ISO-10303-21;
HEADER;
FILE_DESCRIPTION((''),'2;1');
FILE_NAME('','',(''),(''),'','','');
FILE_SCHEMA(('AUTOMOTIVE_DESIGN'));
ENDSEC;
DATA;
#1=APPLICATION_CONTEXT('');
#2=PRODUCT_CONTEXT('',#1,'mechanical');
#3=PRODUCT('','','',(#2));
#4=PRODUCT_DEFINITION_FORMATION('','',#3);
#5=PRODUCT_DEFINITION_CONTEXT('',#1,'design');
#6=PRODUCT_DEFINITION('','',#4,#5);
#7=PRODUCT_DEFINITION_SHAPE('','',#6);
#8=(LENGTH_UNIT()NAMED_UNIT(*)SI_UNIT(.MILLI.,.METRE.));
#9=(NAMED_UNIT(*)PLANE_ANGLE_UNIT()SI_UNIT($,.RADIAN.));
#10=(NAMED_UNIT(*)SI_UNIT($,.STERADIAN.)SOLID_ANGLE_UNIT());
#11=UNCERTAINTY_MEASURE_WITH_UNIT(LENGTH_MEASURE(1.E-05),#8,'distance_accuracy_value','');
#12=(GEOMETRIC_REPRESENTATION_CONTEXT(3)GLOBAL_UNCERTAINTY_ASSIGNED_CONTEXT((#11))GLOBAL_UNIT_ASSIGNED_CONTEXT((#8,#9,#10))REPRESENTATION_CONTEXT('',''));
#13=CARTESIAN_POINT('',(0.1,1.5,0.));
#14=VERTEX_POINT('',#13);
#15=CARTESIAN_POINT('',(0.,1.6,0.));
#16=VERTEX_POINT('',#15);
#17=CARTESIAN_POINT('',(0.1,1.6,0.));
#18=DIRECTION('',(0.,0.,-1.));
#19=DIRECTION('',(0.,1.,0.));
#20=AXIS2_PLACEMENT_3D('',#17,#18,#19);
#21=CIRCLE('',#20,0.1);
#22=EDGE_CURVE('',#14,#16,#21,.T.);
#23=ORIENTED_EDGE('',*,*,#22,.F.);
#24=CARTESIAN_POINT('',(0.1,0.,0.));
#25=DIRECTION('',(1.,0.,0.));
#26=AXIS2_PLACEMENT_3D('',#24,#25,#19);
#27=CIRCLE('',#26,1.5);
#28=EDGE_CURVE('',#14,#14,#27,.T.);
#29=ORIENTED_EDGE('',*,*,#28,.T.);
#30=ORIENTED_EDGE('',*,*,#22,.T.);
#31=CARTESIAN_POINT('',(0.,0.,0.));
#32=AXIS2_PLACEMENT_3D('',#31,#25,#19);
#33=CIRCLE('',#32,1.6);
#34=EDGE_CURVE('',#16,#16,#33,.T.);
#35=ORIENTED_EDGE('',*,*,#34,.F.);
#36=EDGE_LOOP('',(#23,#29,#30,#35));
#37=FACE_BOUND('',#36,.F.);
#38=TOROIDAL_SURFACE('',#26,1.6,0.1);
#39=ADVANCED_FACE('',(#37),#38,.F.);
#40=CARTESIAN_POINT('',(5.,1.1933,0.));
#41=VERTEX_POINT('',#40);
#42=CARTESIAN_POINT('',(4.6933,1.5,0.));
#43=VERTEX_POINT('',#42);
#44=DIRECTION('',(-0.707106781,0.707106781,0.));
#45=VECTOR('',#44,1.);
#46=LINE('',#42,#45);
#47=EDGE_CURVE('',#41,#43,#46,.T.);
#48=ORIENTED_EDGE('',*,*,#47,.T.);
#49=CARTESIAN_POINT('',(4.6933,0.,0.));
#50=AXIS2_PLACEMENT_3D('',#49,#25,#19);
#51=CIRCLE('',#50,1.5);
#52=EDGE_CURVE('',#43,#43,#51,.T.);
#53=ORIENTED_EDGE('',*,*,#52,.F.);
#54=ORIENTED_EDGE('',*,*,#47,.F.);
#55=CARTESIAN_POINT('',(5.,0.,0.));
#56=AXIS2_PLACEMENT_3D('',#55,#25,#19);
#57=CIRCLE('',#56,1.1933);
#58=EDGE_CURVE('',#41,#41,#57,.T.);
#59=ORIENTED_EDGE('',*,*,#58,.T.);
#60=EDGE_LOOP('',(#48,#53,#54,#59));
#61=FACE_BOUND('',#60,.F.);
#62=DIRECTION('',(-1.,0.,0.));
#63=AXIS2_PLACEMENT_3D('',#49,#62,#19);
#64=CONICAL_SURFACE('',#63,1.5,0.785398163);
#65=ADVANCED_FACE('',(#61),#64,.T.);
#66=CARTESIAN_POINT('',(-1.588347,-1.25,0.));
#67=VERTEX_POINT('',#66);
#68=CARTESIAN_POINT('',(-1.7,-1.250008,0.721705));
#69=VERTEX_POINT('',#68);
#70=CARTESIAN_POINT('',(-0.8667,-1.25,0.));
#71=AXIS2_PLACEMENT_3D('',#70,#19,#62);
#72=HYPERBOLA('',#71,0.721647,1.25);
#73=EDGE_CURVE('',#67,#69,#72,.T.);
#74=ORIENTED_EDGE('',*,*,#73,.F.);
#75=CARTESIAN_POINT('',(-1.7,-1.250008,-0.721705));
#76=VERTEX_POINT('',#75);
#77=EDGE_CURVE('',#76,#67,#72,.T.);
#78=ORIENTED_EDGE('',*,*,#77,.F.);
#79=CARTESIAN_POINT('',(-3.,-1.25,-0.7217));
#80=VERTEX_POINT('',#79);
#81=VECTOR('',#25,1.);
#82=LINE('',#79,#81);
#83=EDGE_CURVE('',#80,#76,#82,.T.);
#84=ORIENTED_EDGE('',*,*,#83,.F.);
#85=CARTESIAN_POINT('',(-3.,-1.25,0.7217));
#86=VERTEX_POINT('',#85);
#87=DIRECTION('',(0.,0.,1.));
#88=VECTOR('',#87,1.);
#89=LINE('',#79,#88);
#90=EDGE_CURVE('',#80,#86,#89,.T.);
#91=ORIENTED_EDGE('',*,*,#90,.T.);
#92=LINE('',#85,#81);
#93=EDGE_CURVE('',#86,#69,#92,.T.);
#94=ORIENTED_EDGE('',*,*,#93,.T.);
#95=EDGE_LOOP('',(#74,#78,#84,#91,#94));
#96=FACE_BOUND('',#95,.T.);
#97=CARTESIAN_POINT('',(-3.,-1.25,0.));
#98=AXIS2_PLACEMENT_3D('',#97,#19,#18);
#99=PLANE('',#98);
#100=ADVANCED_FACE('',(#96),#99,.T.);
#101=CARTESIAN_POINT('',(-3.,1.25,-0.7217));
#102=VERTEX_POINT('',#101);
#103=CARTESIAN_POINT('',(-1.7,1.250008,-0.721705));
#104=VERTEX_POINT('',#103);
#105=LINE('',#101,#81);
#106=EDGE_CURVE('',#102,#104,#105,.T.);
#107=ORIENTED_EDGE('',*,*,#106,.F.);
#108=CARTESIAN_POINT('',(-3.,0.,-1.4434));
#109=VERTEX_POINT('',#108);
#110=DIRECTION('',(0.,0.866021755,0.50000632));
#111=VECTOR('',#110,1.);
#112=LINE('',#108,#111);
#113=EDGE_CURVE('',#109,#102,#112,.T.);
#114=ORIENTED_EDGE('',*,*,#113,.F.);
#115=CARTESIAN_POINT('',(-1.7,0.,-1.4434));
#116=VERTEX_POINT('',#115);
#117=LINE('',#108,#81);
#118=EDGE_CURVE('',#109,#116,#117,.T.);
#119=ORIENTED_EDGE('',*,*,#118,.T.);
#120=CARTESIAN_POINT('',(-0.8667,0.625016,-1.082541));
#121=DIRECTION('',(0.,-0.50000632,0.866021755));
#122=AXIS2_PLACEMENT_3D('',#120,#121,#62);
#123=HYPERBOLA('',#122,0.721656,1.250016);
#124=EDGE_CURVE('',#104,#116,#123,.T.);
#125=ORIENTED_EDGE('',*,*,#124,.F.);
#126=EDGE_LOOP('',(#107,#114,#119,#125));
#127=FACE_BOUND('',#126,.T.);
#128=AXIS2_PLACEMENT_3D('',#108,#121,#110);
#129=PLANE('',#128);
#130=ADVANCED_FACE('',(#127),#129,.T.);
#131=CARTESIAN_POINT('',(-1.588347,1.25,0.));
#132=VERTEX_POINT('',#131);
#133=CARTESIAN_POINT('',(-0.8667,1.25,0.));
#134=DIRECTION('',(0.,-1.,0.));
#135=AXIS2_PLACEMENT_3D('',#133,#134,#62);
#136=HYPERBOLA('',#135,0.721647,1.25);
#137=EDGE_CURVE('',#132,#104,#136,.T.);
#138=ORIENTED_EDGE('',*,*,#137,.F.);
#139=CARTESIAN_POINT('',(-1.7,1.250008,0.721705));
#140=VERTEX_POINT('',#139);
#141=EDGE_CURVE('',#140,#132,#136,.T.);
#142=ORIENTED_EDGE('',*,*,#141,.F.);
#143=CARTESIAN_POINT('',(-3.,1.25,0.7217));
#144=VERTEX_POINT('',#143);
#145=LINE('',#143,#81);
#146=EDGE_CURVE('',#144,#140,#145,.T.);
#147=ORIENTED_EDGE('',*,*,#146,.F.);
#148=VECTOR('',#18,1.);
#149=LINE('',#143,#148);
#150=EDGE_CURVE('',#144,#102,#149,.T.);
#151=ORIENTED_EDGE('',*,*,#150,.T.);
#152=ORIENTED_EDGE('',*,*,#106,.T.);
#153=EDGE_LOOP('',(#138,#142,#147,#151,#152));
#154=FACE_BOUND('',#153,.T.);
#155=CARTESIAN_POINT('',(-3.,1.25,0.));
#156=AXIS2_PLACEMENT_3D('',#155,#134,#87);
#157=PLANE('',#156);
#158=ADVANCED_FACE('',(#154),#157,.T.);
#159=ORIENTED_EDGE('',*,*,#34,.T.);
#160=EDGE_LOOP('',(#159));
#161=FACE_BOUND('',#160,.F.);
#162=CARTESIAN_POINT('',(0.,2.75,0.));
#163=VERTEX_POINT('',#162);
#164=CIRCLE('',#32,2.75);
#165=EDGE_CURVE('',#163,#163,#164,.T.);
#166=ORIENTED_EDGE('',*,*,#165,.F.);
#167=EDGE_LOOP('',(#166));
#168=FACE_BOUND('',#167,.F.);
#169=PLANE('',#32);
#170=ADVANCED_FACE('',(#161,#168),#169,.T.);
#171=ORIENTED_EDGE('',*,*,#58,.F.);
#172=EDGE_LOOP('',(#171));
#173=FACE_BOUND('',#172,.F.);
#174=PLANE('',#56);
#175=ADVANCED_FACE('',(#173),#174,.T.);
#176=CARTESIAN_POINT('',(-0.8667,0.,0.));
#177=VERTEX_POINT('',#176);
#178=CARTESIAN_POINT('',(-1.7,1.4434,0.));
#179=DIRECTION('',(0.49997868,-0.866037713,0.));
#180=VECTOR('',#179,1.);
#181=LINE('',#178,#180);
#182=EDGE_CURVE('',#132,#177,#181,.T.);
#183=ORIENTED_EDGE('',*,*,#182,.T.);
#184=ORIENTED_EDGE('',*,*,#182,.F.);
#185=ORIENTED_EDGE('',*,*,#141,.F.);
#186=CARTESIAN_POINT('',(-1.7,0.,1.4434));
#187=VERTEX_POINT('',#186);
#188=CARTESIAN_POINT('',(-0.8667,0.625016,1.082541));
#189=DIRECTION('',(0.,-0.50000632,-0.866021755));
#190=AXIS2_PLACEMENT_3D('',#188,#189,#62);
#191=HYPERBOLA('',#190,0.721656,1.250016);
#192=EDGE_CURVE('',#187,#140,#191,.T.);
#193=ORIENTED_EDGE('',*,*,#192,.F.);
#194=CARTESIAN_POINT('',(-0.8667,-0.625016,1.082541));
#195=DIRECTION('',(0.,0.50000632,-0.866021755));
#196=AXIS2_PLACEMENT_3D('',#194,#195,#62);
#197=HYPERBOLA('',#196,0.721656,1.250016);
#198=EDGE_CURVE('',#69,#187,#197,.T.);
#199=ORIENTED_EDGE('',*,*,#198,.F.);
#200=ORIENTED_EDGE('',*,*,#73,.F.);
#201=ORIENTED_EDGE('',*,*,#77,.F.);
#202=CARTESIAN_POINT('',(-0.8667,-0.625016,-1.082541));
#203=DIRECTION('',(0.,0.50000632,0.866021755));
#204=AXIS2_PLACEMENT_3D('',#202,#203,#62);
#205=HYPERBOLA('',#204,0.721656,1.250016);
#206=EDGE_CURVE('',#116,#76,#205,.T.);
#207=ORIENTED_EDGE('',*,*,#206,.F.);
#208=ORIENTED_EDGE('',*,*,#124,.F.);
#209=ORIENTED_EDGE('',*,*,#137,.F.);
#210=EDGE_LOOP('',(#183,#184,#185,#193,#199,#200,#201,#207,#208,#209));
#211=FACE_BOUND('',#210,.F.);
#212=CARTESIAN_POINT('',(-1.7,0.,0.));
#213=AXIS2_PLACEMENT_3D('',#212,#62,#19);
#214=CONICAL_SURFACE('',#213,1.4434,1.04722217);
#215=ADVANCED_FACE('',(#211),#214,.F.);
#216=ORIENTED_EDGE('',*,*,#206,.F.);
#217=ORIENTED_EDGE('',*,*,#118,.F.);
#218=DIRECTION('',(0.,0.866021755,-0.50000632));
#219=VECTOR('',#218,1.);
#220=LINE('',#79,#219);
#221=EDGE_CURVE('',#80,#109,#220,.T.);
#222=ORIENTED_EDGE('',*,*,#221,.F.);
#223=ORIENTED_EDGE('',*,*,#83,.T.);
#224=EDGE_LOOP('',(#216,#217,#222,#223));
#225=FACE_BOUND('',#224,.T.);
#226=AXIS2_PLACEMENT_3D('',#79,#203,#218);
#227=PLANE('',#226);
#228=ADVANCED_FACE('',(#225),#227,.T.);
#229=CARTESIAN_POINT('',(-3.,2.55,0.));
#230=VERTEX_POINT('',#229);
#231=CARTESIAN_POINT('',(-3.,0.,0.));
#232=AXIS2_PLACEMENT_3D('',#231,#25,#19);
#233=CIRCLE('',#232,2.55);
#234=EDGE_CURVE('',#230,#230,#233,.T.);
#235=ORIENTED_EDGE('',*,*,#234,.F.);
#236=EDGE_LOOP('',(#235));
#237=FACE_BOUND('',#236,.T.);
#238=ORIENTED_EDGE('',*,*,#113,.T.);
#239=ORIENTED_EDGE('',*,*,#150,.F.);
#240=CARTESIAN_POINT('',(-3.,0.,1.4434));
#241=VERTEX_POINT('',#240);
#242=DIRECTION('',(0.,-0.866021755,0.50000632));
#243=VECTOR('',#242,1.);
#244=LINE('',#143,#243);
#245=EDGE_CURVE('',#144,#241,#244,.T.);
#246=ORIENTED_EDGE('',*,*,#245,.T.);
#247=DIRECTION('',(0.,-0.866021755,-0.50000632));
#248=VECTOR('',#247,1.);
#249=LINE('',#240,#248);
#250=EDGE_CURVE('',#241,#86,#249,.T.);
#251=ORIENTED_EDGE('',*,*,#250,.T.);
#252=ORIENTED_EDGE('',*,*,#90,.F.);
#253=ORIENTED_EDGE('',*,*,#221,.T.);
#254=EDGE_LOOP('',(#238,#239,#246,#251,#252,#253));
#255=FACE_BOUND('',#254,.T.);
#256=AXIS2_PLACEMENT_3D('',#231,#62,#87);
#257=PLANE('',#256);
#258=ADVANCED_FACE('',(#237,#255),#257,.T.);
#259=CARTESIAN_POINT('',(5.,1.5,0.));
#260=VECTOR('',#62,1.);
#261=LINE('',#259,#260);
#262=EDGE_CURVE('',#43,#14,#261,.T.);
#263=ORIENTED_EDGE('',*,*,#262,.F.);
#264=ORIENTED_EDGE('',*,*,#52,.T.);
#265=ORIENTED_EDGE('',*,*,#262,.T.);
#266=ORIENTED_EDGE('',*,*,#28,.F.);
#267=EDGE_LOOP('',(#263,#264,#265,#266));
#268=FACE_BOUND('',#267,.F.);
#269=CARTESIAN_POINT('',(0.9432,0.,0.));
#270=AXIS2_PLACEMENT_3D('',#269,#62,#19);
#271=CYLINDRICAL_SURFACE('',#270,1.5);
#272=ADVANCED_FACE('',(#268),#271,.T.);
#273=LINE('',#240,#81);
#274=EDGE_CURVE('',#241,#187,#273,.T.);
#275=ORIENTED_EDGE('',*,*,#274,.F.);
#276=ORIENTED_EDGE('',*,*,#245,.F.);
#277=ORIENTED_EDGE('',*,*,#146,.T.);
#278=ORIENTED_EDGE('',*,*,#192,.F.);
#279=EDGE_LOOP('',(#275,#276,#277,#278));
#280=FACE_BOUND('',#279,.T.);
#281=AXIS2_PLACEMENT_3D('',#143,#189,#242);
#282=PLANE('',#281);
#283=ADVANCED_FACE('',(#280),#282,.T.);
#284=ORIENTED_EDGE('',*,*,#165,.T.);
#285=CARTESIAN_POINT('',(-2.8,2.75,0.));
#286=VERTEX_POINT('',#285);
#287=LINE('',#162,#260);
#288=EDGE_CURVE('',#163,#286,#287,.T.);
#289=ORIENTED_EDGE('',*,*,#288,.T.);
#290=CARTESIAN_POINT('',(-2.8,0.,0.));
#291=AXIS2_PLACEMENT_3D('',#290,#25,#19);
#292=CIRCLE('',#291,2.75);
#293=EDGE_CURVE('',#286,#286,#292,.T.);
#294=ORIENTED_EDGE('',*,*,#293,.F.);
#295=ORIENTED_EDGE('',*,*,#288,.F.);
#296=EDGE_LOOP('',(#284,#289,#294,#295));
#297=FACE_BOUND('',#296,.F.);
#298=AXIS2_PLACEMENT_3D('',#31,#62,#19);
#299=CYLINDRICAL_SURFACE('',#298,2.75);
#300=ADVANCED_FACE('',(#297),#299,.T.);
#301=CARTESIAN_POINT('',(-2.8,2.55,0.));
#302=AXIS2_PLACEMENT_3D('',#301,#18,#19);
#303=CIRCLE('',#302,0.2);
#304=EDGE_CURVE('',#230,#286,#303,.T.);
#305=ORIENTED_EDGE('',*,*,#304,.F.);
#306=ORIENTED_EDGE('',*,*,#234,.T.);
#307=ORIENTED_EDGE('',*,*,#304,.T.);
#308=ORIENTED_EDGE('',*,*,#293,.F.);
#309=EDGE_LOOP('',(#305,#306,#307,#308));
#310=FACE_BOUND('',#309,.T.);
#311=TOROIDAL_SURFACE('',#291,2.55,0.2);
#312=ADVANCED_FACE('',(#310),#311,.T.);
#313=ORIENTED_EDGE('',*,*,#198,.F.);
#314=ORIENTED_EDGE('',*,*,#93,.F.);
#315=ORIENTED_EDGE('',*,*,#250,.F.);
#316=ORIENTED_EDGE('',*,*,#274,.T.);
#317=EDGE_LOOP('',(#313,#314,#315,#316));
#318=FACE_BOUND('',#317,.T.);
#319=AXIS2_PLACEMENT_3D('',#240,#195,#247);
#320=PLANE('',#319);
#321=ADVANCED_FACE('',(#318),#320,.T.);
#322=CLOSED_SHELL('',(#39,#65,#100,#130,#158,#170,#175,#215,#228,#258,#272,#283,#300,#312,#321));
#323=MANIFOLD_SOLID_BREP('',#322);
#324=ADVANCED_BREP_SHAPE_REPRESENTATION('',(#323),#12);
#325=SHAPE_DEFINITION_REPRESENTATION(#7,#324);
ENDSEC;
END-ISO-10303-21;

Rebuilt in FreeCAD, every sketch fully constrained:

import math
import FreeCAD as App
import Part
import Sketcher

V = App.Vector
Q = App.Units.Quantity


def edges_at(feature, points):
    """Names of the edges that pass closest to the given points."""
    edges = feature.Shape.Edges
    near = lambda p: min(range(len(edges)), key=lambda i: edges[i].distToShape(Part.Vertex(*p))[0])
    return sorted({f"Edge{near(p) + 1}" for p in points})

doc = App.newDocument("Part")
body = doc.addObject("PartDesign::Body", "Body")

sketch1 = doc.addObject("Sketcher::SketchObject", "Sketch")
body.addObject(sketch1)
sketch1.AttachmentSupport = (doc.XY_Plane, [""])
sketch1.MapMode = "FlatFace"
sketch1.addGeometry([
    Part.LineSegment(V(-1.7, 1.4, 0), V(-0.9, 0, 0)),
    Part.LineSegment(V(-0.9, 0, 0), V(5, 0, 0)),
    Part.LineSegment(V(5, 0, 0), V(5, 1.5, 0)),
    Part.LineSegment(V(5, 1.5, 0), V(0, 1.5, 0)),
    Part.LineSegment(V(0, 1.5, 0), V(0, 2.8, 0)),
    Part.LineSegment(V(0, 2.8, 0), V(-3, 2.8, 0)),
    Part.LineSegment(V(-3, 2.8, 0), V(-3, 1.4, 0)),
    Part.LineSegment(V(-3, 1.4, 0), V(-1.7, 1.4, 0)),
], False)
sketch1.addConstraint([
    Sketcher.Constraint("Coincident", 0, 2, 1, 1),
    Sketcher.Constraint("Coincident", 1, 2, 2, 1),
    Sketcher.Constraint("Coincident", 2, 2, 3, 1),
    Sketcher.Constraint("Coincident", 3, 2, 4, 1),
    Sketcher.Constraint("Coincident", 4, 2, 5, 1),
    Sketcher.Constraint("Coincident", 5, 2, 6, 1),
    Sketcher.Constraint("Coincident", 6, 2, 7, 1),
    Sketcher.Constraint("Coincident", 7, 2, 0, 1),
    Sketcher.Constraint("Horizontal", 1),
    Sketcher.Constraint("Vertical", 2),
    Sketcher.Constraint("Horizontal", 3),
    Sketcher.Constraint("Vertical", 4),
    Sketcher.Constraint("Horizontal", 5),
    Sketcher.Constraint("Vertical", 6),
    Sketcher.Constraint("Horizontal", 7),
    Sketcher.Constraint("PointOnObject", 0, 2, -1),
    Sketcher.Constraint("PointOnObject", 3, 2, -2),
    Sketcher.Constraint("DistanceX", 3, 2, 3, 1, 5.0),
    Sketcher.Constraint("DistanceX", 5, 2, 5, 1, 3.0),
    Sketcher.Constraint("DistanceX", 7, 1, 7, 2, 1.3),
    Sketcher.Constraint("DistanceY", 2, 1, 2, 2, 1.5),
    Sketcher.Constraint("DistanceY", 4, 1, 4, 2, 1.25),
    Sketcher.Constraint("DistanceX", 1, 1, 1, 2, 5.8667),
    Sketcher.Constraint("DistanceY", 6, 2, 6, 1, 1.3066),
])
revolution = doc.addObject("PartDesign::Revolution", "Revolution")
body.addObject(revolution)
revolution.Profile = sketch1
revolution.ReferenceAxis = (sketch1, ["H_Axis"])
revolution.Angle = 360

sketch2 = doc.addObject("Sketcher::SketchObject", "Sketch001")
body.addObject(sketch2)
sketch2.AttachmentSupport = (doc.YZ_Plane, [""])
sketch2.MapMode = "FlatFace"
sketch2.AttachmentOffset = App.Placement(V(0, 0, -3), App.Rotation())
sketch2.addGeometry([
    Part.LineSegment(V(1.2, 0.7, 0), V(0, 1.4, 0)),
    Part.ArcOfCircle(Part.Circle(V(0, 0, 0), V(0, 0, 1), 1.4), math.radians(30), math.radians(90)),
    Part.ArcOfCircle(Part.Circle(V(0, 0, 0), V(0, 0, 1), 1.4), math.radians(90), math.radians(150)),
    Part.LineSegment(V(0, 1.4, 0), V(-1.2, 0.7, 0)),
    Part.ArcOfCircle(Part.Circle(V(0, 0, 0), V(0, 0, 1), 1.4), math.radians(-30), math.radians(30)),
    Part.LineSegment(V(1.2, 0.7, 0), V(1.2, -0.7, 0)),
    Part.LineSegment(V(-1.2, 0.7, 0), V(-1.2, -0.7, 0)),
    Part.ArcOfCircle(Part.Circle(V(0, 0, 0), V(0, 0, 1), 1.4), math.radians(150), math.radians(210)),
    Part.LineSegment(V(-1.2, -0.7, 0), V(0, -1.4, 0)),
    Part.ArcOfCircle(Part.Circle(V(0, 0, 0), V(0, 0, 1), 1.4), math.radians(-150), math.radians(-90)),
    Part.ArcOfCircle(Part.Circle(V(0, 0, 0), V(0, 0, 1), 1.4), math.radians(-90), math.radians(-30)),
    Part.LineSegment(V(0, -1.4, 0), V(1.2, -0.7, 0)),
], False)
sketch2.addConstraint([
    Sketcher.Constraint("Coincident", 0, 1, 1, 1),
    Sketcher.Constraint("Coincident", 1, 2, 0, 2),
    Sketcher.Constraint("Coincident", 2, 1, 3, 1),
    Sketcher.Constraint("Coincident", 3, 2, 2, 2),
    Sketcher.Constraint("Coincident", 4, 1, 5, 2),
    Sketcher.Constraint("Coincident", 5, 1, 4, 2),
    Sketcher.Constraint("Coincident", 6, 1, 7, 1),
    Sketcher.Constraint("Coincident", 7, 2, 6, 2),
    Sketcher.Constraint("Coincident", 8, 1, 9, 1),
    Sketcher.Constraint("Coincident", 9, 2, 8, 2),
    Sketcher.Constraint("Coincident", 10, 1, 11, 1),
    Sketcher.Constraint("Coincident", 11, 2, 10, 2),
    Sketcher.Constraint("Vertical", 5),
    Sketcher.Constraint("Vertical", 6),
    Sketcher.Constraint("Coincident", 1, 3, -1, 1),
    Sketcher.Constraint("Coincident", 2, 3, -1, 1),
    Sketcher.Constraint("Coincident", 4, 3, -1, 1),
    Sketcher.Constraint("Coincident", 7, 3, -1, 1),
    Sketcher.Constraint("Coincident", 9, 3, -1, 1),
    Sketcher.Constraint("Coincident", 10, 3, -1, 1),
    Sketcher.Constraint("Coincident", 2, 1, 1, 2),
    Sketcher.Constraint("Coincident", 5, 1, 0, 1),
    Sketcher.Constraint("Coincident", 6, 1, 3, 2),
    Sketcher.Constraint("Coincident", 8, 1, 7, 2),
    Sketcher.Constraint("Coincident", 10, 1, 9, 2),
    Sketcher.Constraint("PointOnObject", 1, 2, -2),
    Sketcher.Constraint("PointOnObject", 9, 2, -2),
    Sketcher.Constraint("Parallel", 0, 8),
    Sketcher.Constraint("Parallel", 3, 11),
    Sketcher.Constraint("Angle", 0, Q("149.9996 deg")),
    Sketcher.Constraint("Radius", 1, 1.4434),
])
pad1 = doc.addObject("PartDesign::Pad", "Pad")
body.addObject(pad1)
pad1.Profile = sketch2
pad1.Type = "UpToFirst"
doc.recompute()

fillet = doc.addObject("PartDesign::Fillet", "Fillet")
body.addObject(fillet)
fillet.Base = (pad1, edges_at(pad1, [(-3, -2.75, 0)]))
fillet.Radius = 0.2
doc.recompute()

chamfer = doc.addObject("PartDesign::Chamfer", "Chamfer")
body.addObject(chamfer)
chamfer.Base = (fillet, edges_at(fillet, [(5, -1.5, 0)]))
chamfer.ChamferType = "Two distances"
chamfer.Size = 0.3067
chamfer.Size2 = 0.3067
doc.recompute()

fillet2 = doc.addObject("PartDesign::Fillet", "Fillet001")
body.addObject(fillet2)
fillet2.Base = (chamfer, edges_at(chamfer, [(0, -1.5, 0)]))
fillet2.Radius = 0.1

doc.recompute()
